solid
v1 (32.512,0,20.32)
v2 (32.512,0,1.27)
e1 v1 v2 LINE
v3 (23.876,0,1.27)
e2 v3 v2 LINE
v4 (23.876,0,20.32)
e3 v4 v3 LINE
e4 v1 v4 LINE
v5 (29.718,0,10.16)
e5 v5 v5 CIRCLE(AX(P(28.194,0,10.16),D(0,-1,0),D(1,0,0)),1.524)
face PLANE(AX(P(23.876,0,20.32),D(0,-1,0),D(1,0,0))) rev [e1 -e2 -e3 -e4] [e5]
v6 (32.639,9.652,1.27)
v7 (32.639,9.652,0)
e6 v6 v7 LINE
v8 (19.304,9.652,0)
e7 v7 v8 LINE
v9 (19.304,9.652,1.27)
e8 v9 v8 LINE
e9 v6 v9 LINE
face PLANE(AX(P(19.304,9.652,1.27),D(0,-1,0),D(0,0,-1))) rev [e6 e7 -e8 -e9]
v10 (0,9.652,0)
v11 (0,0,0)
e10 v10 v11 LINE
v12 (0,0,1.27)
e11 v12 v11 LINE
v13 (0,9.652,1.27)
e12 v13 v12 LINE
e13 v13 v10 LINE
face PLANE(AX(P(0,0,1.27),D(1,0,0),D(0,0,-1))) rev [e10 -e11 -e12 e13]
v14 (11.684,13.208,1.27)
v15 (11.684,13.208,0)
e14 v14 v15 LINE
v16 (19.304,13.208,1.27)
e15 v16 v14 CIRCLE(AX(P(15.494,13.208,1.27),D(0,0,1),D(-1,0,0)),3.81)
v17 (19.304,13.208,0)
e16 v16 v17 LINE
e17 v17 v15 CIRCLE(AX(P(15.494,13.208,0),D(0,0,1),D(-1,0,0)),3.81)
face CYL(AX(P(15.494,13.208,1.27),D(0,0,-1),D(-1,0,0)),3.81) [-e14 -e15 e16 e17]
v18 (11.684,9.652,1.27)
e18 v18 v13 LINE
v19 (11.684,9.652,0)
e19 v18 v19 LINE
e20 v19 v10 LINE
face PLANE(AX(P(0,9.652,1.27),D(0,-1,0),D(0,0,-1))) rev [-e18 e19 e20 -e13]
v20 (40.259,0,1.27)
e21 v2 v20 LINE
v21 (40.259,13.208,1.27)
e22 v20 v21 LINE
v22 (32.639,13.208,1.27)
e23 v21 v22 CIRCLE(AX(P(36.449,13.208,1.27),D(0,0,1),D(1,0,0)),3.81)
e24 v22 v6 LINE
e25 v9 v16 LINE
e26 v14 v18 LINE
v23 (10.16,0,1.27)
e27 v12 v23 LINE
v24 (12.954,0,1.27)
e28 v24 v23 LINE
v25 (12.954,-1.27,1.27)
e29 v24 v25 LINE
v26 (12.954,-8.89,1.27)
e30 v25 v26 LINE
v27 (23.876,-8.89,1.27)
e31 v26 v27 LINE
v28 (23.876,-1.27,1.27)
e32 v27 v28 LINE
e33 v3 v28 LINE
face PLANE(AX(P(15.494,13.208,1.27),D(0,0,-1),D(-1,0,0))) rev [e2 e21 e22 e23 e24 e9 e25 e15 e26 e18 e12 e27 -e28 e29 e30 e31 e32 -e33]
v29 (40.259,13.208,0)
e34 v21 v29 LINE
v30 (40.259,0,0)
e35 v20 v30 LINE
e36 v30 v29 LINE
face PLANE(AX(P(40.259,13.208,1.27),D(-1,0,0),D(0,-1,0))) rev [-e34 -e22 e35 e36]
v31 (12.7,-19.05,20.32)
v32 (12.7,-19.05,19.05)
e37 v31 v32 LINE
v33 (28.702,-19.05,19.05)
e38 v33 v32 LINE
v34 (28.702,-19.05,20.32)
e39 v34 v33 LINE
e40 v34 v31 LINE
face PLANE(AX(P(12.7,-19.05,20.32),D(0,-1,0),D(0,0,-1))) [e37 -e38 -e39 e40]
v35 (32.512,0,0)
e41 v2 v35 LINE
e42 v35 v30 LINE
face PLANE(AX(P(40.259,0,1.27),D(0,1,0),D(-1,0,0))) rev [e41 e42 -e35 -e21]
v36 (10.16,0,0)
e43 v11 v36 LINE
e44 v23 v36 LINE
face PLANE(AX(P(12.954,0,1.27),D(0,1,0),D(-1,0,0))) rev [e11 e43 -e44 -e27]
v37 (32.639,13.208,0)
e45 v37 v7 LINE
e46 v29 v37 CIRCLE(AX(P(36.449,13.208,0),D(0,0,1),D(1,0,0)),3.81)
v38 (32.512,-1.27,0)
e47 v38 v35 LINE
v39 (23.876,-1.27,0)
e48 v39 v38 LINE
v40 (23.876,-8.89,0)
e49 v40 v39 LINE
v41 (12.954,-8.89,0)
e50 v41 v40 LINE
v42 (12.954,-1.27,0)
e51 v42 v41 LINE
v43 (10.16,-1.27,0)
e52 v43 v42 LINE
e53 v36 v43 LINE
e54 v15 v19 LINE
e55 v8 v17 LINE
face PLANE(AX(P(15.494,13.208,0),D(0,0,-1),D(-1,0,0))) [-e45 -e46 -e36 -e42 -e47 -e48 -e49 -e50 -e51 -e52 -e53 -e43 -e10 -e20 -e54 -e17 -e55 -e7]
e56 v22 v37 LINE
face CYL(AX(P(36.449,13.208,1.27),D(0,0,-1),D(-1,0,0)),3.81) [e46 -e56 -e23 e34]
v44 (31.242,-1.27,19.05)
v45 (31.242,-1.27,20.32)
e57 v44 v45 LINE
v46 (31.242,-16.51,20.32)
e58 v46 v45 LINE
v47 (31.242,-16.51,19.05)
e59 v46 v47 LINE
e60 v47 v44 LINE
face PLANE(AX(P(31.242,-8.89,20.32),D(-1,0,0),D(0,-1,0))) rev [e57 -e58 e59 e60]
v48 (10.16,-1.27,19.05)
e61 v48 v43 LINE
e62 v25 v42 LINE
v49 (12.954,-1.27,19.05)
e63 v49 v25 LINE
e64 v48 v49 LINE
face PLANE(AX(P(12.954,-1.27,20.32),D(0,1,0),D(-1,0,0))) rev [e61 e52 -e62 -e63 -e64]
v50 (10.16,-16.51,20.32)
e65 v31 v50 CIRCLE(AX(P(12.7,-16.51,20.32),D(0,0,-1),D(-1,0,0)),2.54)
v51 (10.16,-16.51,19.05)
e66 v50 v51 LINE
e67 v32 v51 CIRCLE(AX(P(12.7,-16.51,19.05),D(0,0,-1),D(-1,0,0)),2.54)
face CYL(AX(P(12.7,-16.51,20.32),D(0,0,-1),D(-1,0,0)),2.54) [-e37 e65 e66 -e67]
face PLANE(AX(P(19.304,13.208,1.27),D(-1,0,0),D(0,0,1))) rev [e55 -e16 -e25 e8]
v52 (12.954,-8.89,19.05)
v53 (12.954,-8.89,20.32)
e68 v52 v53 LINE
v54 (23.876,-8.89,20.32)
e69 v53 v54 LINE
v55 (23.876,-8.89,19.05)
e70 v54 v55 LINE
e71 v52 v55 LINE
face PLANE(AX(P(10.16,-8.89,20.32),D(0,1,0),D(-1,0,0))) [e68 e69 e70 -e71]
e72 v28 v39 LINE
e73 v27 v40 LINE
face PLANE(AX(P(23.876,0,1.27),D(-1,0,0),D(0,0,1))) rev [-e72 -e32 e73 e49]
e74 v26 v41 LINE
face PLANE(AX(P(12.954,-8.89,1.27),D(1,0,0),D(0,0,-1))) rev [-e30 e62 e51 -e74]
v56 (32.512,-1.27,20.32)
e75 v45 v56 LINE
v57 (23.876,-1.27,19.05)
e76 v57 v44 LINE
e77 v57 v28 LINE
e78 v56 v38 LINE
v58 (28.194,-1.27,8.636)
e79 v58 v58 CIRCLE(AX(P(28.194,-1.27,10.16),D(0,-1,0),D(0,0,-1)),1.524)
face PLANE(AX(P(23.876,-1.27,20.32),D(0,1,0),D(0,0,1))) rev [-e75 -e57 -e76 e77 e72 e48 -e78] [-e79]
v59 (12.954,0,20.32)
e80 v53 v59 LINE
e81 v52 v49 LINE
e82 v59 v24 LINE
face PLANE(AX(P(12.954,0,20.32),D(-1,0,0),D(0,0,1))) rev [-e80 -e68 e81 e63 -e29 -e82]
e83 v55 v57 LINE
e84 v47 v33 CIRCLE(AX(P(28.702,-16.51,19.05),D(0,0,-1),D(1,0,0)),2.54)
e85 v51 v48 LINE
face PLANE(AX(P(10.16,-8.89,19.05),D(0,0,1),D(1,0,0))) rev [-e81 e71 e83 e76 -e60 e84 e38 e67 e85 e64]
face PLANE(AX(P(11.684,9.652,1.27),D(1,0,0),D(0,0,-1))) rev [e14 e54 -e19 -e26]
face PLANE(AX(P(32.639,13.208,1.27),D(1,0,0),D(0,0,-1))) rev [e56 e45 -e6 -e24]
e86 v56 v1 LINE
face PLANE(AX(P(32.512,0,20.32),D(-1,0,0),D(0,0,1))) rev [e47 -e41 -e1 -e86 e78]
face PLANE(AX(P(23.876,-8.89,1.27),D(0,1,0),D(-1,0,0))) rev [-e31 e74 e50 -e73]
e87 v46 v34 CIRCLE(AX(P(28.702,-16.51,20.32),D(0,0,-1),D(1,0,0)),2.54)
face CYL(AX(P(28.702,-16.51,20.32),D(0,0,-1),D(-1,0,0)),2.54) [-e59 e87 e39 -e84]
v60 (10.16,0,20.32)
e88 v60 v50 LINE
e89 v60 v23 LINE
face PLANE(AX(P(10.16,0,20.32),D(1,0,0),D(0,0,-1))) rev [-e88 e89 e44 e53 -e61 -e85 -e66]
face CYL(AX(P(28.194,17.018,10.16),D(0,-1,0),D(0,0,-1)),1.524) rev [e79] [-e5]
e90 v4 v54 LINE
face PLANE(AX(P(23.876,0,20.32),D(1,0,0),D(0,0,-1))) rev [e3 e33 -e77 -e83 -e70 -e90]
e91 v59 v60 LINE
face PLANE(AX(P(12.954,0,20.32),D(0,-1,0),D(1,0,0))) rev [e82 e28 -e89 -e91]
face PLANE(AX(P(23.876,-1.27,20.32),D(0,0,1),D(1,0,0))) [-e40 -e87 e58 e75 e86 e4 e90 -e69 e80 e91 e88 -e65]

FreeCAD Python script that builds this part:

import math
import FreeCAD as App
import Part
import Sketcher

V = App.Vector
Q = App.Units.Quantity


def add_polygon(sketch, points):
    """Adds a closed chain of lines whose ends are joined by coincident constraints."""
    first, n = sketch.GeometryCount, len(points)
    for a, b in zip(points, points[1:] + points[:1]):
        sketch.addGeometry(Part.LineSegment(App.Vector(*a, 0), App.Vector(*b, 0)), False)
    for i in range(n):
        sketch.addConstraint(Sketcher.Constraint("Coincident", first + i, 2, first + (i + 1) % n, 1))

doc = App.newDocument("Part")
body = doc.addObject("PartDesign::Body", "Body")

# Sketch on XY plane
sketch1 = doc.addObject("Sketcher::SketchObject", "Sketch")
body.addObject(sketch1)
sketch1.AttachmentSupport = (doc.XY_Plane, [""])
sketch1.MapMode = "FlatFace"
sketch1.addGeometry([
    Part.LineSegment(V(0, 9.7, 0), V(0, 0, 0)),  # 0
    Part.LineSegment(V(0, 0, 0), V(13, 0, 0)),  # 1
    Part.LineSegment(V(13, 0, 0), V(13, -8.9, 0)),  # 2
    Part.LineSegment(V(13, -8.9, 0), V(23.9, -8.9, 0)),  # 3
    Part.LineSegment(V(23.9, -8.9, 0), V(23.9, 0, 0)),  # 4
    Part.LineSegment(V(23.9, 0, 0), V(40.3, 0, 0)),  # 5
    Part.LineSegment(V(40.3, 0, 0), V(40.3, 13.2, 0)),  # 6
    Part.ArcOfCircle(Part.Circle(V(36.4, 13.2, 0), V(0, 0, 1), 3.8), math.radians(0), math.radians(180)),  # 7
    Part.LineSegment(V(32.6, 13.2, 0), V(32.6, 9.7, 0)),  # 8
    Part.LineSegment(V(32.6, 9.7, 0), V(19.3, 9.7, 0)),  # 9
    Part.LineSegment(V(19.3, 9.7, 0), V(19.3, 13.2, 0)),  # 10
    Part.ArcOfCircle(Part.Circle(V(15.5, 13.2, 0), V(0, 0, 1), 3.8), math.radians(0), math.radians(180)),  # 11
    Part.LineSegment(V(11.7, 13.2, 0), V(11.7, 9.7, 0)),  # 12
    Part.LineSegment(V(11.7, 9.7, 0), V(0, 9.7, 0)),  # 13
], False)
sketch1.addConstraint([
    Sketcher.Constraint("Coincident", 0, 2, 1, 1),
    Sketcher.Constraint("Coincident", 1, 2, 2, 1),
    Sketcher.Constraint("Coincident", 2, 2, 3, 1),
    Sketcher.Constraint("Coincident", 3, 2, 4, 1),
    Sketcher.Constraint("Coincident", 4, 2, 5, 1),
    Sketcher.Constraint("Coincident", 5, 2, 6, 1),
    Sketcher.Constraint("Tangent", 6, 2, 7, 1),
    Sketcher.Constraint("Tangent", 7, 2, 8, 1),
    Sketcher.Constraint("Coincident", 8, 2, 9, 1),
    Sketcher.Constraint("Coincident", 9, 2, 10, 1),
    Sketcher.Constraint("Tangent", 10, 2, 11, 1),
    Sketcher.Constraint("Tangent", 11, 2, 12, 1),
    Sketcher.Constraint("Coincident", 12, 2, 13, 1),
    Sketcher.Constraint("Coincident", 13, 2, 0, 1),
    Sketcher.Constraint("Vertical", 0),
    Sketcher.Constraint("Horizontal", 1),
    Sketcher.Constraint("Vertical", 2),
    Sketcher.Constraint("Horizontal", 3),
    Sketcher.Constraint("Vertical", 4),
    Sketcher.Constraint("Horizontal", 5),
    Sketcher.Constraint("Vertical", 6),
    Sketcher.Constraint("Vertical", 8),
    Sketcher.Constraint("Horizontal", 9),
    Sketcher.Constraint("Vertical", 10),
    Sketcher.Constraint("Vertical", 12),
    Sketcher.Constraint("Horizontal", 13),
    Sketcher.Constraint("Coincident", 0, 2, -1, 1),
    Sketcher.Constraint("Equal", 7, 11),
    Sketcher.Constraint("PointOnObject", 4, 2, -1),
    Sketcher.Constraint("Horizontal", 7, 3, 11, 3),
    Sketcher.Constraint("Horizontal", 9, 2, 12, 2),
    Sketcher.Constraint("Radius", 7, Q("0.15 in")),
    Sketcher.Constraint("DistanceX", 1, 1, 1, 2, Q("0.51 in")),
    Sketcher.Constraint("DistanceX", 3, 1, 3, 2, Q("0.43 in")),
    Sketcher.Constraint("DistanceX", 13, 2, 13, 1, Q("0.46 in")),
    Sketcher.Constraint("DistanceY", 0, 2, 0, 1, Q("0.38 in")),
    Sketcher.Constraint("DistanceY", 2, 2, 2, 1, Q("0.35 in")),
    Sketcher.Constraint("DistanceY", 6, 1, 6, 2, Q("0.52 in")),
    Sketcher.Constraint("DistanceX", 5, 1, 5, 2, Q("0.645 in")),
])
pad1 = doc.addObject("PartDesign::Pad", "Pad")
body.addObject(pad1)
pad1.Profile = sketch1
pad1.Length = Q("0.05 in")

# Sketch on XY plane
sketch2 = doc.addObject("Sketcher::SketchObject", "Sketch001")
body.addObject(sketch2)
sketch2.AttachmentSupport = (doc.XY_Plane, [""])
sketch2.MapMode = "FlatFace"
add_polygon(sketch2, [(23.9, 0), (23.9, -1.3), (32.5, -1.3), (32.5, 0)])  # lines 0-3
add_polygon(sketch2, [(10.2, 0), (10.2, -1.3), (13, -1.3), (13, 0)])  # lines 4-7
sketch2.addConstraint([
    Sketcher.Constraint("Vertical", 0),
    Sketcher.Constraint("Horizontal", 1),
    Sketcher.Constraint("Vertical", 2),
    Sketcher.Constraint("Horizontal", 3),
    Sketcher.Constraint("Vertical", 4),
    Sketcher.Constraint("Horizontal", 5),
    Sketcher.Constraint("Vertical", 6),
    Sketcher.Constraint("Horizontal", 7),
    Sketcher.Constraint("PointOnObject", 2, 2, -1),
    Sketcher.Constraint("PointOnObject", 6, 2, -1),
    Sketcher.Constraint("Horizontal", 1, 2, 4, 2),
    Sketcher.Constraint("DistanceX", 1, 1, 1, 2, Q("0.34 in")),
    Sketcher.Constraint("DistanceX", 5, 1, 5, 2, Q("0.11 in")),
    Sketcher.Constraint("DistanceY", 0, 2, 0, 1, Q("0.05 in")),
    Sketcher.Constraint("DistanceX", -1, 1, 4, 2, Q("0.4 in")),
    Sketcher.Constraint("DistanceX", -1, 1, 0, 2, Q("0.94 in")),
])
pad2 = doc.addObject("PartDesign::Pad", "Pad001")
body.addObject(pad2)
pad2.Profile = sketch2
pad2.Length = Q("0.8 in")

# Sketch on XZ plane
sketch3 = doc.addObject("Sketcher::SketchObject", "Sketch002")
body.addObject(sketch3)
sketch3.AttachmentSupport = (doc.XZ_Plane, [""])
sketch3.MapMode = "FlatFace"
sketch3.AttachmentOffset = App.Placement(V(0, 0, 0.05 * 25.4), App.Rotation())
add_polygon(sketch3, [(10.2, 20.3), (10.2, 19.1), (13, 19.1), (13, 20.3)])  # lines 0-3
add_polygon(sketch3, [(23.9, 20.3), (23.9, 19.1), (31.2, 19.1), (31.2, 20.3)])  # lines 4-7
sketch3.addConstraint([
    Sketcher.Constraint("Vertical", 0),
    Sketcher.Constraint("Horizontal", 1),
    Sketcher.Constraint("Vertical", 2),
    Sketcher.Constraint("Horizontal", 3),
    Sketcher.Constraint("Vertical", 4),
    Sketcher.Constraint("Horizontal", 5),
    Sketcher.Constraint("Vertical", 6),
    Sketcher.Constraint("Horizontal", 7),
    Sketcher.Constraint("Horizontal", 1, 2, 4, 2),
    Sketcher.Constraint("Horizontal", 3, 2, 6, 2),
    Sketcher.Constraint("DistanceX", 1, 1, 1, 2, Q("0.11 in")),
    Sketcher.Constraint("DistanceX", 5, 1, 5, 2, Q("0.29 in")),
    Sketcher.Constraint("DistanceY", 0, 2, 0, 1, Q("0.05 in")),
    Sketcher.Constraint("DistanceX", -1, 1, 0, 2, Q("0.4 in")),
    Sketcher.Constraint("DistanceY", -1, 1, 2, 2, Q("0.8 in")),
    Sketcher.Constraint("DistanceX", -1, 1, 4, 2, Q("0.94 in")),
])
pad3 = doc.addObject("PartDesign::Pad", "Pad002")
body.addObject(pad3)
pad3.Profile = sketch3
pad3.Length = Q("0.3 in")

# Sketch on XY plane
sketch4 = doc.addObject("Sketcher::SketchObject", "Sketch003")
body.addObject(sketch4)
sketch4.AttachmentSupport = (doc.XY_Plane, [""])
sketch4.MapMode = "FlatFace"
sketch4.AttachmentOffset = App.Placement(V(0, 0, 0.75 * 25.4), App.Rotation())
sketch4.addGeometry([
    Part.LineSegment(V(10.2, -8.9, 0), V(31.2, -8.9, 0)),  # 0
    Part.LineSegment(V(31.2, -8.9, 0), V(31.2, -16.5, 0)),  # 1
    Part.ArcOfCircle(Part.Circle(V(28.7, -16.5, 0), V(0, 0, 1), 2.5), math.radians(-90), math.radians(0)),  # 2
    Part.LineSegment(V(28.7, -19.1, 0), V(12.7, -19.1, 0)),  # 3
    Part.ArcOfCircle(Part.Circle(V(12.7, -16.5, 0), V(0, 0, 1), 2.5), math.radians(-180), math.radians(-90)),  # 4
    Part.LineSegment(V(10.2, -16.5, 0), V(10.2, -8.9, 0)),  # 5
], False)
sketch4.addConstraint([
    Sketcher.Constraint("Coincident", 0, 2, 1, 1),
    Sketcher.Constraint("Tangent", 1, 2, 2, 2),
    Sketcher.Constraint("Tangent", 2, 1, 3, 1),
    Sketcher.Constraint("Tangent", 3, 2, 4, 2),
    Sketcher.Constraint("Tangent", 4, 1, 5, 1),
    Sketcher.Constraint("Coincident", 5, 2, 0, 1),
    Sketcher.Constraint("Horizontal", 0),
    Sketcher.Constraint("Vertical", 1),
    Sketcher.Constraint("Horizontal", 3),
    Sketcher.Constraint("Vertical", 5),
    Sketcher.Constraint("Equal", 2, 4),
    Sketcher.Constraint("Radius", 2, Q("0.1 in")),
    Sketcher.Constraint("DistanceY", 1, 2, 1, 1, Q("0.3 in")),
    Sketcher.Constraint("DistanceX", 0, 1, 0, 2, Q("0.83 in")),
    Sketcher.Constraint("DistanceX", -1, 1, 4, 3, Q("0.5 in")),
    Sketcher.Constraint("DistanceY", 2, 3, -1, 1, Q("0.65 in")),
])
pad4 = doc.addObject("PartDesign::Pad", "Pad003")
body.addObject(pad4)
pad4.Profile = sketch4
pad4.Length = Q("0.05 in")

# Sketch on XZ plane
sketch5 = doc.addObject("Sketcher::SketchObject", "Sketch004")
body.addObject(sketch5)
sketch5.AttachmentSupport = (doc.XZ_Plane, [""])
sketch5.MapMode = "FlatFace"
sketch5.AttachmentOffset = App.Placement(V(0, 0, 0.05 * 25.4), App.Rotation())
sketch5.addGeometry(Part.Circle(V(28.2, 10.2, 0), V(0, 0, 1), 1.5), False)
sketch5.addConstraint([
    Sketcher.Constraint("Diameter", 0, Q("0.12 in")),
    Sketcher.Constraint("DistanceY", -1, 1, 0, 3, Q("0.4 in")),
    Sketcher.Constraint("DistanceX", -1, 1, 0, 3, Q("1.11 in")),
])
pocket1 = doc.addObject("PartDesign::Pocket", "Pocket")
body.addObject(pocket1)
pocket1.Profile = sketch5
pocket1.Type = "ThroughAll"

doc.recompute()
